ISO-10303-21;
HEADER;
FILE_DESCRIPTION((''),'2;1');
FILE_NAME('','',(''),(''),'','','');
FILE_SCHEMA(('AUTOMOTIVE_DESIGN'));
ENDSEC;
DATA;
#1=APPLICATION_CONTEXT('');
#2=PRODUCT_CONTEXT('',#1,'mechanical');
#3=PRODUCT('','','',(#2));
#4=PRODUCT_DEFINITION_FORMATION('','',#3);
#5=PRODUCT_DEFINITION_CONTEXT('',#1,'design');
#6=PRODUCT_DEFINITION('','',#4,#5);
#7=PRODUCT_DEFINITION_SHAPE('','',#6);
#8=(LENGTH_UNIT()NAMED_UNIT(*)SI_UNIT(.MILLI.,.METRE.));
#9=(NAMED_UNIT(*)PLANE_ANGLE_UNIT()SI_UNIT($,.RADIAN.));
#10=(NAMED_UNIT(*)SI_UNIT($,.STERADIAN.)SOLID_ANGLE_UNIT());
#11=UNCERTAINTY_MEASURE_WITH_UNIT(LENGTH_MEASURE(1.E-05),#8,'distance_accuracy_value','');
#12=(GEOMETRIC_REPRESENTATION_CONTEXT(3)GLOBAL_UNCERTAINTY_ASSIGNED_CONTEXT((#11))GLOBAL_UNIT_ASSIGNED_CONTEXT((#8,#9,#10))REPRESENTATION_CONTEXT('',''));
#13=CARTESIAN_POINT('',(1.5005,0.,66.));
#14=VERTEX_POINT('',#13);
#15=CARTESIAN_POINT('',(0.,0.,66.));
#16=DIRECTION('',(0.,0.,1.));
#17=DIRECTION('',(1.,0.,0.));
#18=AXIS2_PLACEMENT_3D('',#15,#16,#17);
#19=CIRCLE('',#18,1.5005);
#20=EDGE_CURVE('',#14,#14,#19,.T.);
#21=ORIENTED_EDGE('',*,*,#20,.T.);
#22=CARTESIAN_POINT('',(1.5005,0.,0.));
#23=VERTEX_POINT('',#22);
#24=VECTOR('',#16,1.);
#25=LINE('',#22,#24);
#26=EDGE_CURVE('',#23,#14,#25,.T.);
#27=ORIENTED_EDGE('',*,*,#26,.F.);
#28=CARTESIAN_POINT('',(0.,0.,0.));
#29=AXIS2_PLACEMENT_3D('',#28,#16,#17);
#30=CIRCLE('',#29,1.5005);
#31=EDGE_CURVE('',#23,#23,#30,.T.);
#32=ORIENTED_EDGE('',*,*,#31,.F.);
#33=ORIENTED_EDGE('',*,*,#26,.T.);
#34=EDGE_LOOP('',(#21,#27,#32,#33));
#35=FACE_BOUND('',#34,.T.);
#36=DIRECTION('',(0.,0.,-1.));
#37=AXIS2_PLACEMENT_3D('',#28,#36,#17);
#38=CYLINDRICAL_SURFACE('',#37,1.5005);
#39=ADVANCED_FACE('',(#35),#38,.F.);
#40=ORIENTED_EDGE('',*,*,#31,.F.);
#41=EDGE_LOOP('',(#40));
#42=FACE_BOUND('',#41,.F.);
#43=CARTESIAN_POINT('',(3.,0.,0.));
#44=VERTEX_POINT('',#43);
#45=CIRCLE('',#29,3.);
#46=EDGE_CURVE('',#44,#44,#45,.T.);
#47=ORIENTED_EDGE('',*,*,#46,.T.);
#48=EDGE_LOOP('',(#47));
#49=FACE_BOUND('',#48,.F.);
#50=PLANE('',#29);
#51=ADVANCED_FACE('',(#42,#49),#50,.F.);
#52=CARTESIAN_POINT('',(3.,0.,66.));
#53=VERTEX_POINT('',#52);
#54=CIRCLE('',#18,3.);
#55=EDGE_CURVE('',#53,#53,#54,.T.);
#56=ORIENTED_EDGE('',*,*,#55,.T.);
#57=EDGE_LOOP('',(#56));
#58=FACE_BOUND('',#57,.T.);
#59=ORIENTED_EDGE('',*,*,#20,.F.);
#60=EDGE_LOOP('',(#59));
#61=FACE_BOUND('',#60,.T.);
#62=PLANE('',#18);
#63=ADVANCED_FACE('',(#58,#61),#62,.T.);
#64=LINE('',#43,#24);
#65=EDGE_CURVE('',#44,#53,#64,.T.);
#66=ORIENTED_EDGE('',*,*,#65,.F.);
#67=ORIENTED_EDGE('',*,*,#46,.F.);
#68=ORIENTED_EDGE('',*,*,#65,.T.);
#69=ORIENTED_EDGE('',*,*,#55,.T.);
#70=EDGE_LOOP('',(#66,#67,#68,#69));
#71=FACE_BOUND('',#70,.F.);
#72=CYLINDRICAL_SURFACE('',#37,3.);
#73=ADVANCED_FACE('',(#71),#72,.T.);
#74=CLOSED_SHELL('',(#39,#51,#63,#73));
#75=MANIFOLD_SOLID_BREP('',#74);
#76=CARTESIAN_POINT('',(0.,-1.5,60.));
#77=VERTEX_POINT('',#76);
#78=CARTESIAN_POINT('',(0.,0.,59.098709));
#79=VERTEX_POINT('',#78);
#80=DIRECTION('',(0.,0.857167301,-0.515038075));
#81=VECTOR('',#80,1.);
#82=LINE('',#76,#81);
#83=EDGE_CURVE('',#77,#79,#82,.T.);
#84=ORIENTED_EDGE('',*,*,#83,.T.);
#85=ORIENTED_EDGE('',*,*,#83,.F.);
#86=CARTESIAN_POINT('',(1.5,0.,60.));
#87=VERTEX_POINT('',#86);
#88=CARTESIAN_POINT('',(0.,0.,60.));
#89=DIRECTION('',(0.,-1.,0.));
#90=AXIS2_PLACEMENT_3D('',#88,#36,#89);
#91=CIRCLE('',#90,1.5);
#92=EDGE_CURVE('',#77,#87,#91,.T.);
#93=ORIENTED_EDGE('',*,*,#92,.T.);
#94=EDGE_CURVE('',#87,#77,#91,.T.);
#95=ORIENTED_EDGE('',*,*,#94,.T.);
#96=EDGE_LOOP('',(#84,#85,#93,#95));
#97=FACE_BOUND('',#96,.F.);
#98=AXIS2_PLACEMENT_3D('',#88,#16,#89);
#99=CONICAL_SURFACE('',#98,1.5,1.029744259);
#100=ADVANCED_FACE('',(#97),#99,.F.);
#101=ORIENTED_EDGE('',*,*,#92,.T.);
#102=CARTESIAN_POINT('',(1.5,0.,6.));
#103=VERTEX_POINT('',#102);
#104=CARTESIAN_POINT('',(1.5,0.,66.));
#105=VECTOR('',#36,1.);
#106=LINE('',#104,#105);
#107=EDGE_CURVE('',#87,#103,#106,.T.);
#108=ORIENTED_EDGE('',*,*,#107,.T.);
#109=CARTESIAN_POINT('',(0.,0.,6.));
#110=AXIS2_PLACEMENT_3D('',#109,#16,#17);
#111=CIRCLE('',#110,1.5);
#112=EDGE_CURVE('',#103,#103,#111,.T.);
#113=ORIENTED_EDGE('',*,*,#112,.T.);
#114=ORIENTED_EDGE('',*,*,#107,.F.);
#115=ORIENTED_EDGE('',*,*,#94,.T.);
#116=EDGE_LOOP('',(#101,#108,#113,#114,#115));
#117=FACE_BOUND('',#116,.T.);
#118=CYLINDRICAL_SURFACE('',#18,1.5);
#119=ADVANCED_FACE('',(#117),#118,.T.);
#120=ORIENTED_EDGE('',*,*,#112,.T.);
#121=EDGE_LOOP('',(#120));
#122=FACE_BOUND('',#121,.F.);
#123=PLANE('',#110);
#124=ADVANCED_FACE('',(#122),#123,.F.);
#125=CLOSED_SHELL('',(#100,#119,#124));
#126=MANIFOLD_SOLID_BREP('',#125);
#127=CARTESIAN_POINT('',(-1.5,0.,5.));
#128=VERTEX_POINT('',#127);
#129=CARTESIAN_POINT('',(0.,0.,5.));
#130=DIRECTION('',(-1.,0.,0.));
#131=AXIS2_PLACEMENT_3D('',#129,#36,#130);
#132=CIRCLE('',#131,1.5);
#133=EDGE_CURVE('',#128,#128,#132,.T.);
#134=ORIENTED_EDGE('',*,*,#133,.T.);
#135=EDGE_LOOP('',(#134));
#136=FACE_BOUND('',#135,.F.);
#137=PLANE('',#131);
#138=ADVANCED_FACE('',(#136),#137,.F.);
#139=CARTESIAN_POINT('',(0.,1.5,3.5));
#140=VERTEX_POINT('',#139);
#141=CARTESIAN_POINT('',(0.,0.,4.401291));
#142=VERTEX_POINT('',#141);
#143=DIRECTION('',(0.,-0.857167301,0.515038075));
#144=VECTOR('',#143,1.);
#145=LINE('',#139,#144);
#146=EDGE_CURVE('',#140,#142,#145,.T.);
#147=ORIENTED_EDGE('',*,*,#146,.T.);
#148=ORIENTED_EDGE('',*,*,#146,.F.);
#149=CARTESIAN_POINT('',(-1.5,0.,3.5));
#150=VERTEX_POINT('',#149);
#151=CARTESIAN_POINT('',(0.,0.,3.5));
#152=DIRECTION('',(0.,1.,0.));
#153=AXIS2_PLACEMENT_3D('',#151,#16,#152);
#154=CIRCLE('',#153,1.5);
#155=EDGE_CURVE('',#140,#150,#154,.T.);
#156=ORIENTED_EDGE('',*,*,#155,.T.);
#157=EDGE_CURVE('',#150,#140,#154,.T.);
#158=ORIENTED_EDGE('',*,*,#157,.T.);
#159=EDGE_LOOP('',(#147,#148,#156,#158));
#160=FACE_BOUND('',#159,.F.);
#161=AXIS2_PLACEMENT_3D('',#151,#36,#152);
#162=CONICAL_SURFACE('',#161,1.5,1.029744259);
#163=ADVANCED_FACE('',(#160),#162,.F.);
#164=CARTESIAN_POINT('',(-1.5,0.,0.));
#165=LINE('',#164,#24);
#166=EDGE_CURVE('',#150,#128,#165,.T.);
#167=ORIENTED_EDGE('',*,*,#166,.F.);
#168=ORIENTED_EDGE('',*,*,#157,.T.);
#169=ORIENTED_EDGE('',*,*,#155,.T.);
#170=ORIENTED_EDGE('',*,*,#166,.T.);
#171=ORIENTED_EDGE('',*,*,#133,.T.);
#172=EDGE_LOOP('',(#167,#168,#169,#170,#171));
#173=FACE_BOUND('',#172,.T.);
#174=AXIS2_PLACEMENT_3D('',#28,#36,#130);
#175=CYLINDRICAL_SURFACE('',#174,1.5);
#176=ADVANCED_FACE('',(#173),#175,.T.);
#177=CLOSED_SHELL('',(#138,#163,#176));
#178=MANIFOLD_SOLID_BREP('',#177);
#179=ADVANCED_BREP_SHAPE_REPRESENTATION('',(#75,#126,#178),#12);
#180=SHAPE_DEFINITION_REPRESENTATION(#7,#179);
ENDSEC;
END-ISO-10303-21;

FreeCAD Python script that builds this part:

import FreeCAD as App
import Part
import Sketcher
from FreeCAD import Vector

doc = App.newDocument("Part")
body = doc.addObject("PartDesign::Body", "Body")
body.AllowCompound = True

# Sketch on XY plane
sketch1 = body.newObject("Sketcher::SketchObject", "Sketch")
sketch1.AttachmentSupport = (doc.getObject("XY_Plane"), [""])
sketch1.MapMode = "FlatFace"
sketch1.addGeometry([
    Part.Circle(Vector(0, 0, 0), Vector(0, 0, 1), 3),
    Part.Circle(Vector(0, 0, 0), Vector(0, 0, 1), 1.5),
], False)
sketch1.addConstraint([
    Sketcher.Constraint("Coincident", 0, 3, -1, 1),
    Sketcher.Constraint("Coincident", 1, 3, -1, 1),
    Sketcher.Constraint("Diameter", 0, 6.0),
    Sketcher.Constraint("Diameter", 1, 3.001),
])
pad1 = body.newObject("PartDesign::Pad", "Pad")
pad1.Profile = sketch1
pad1.Length = 66

# Sketch on XY plane
sketch2 = body.newObject("Sketcher::SketchObject", "Sketch001")
sketch2.AttachmentSupport = (doc.getObject("XY_Plane"), [""])
sketch2.MapMode = "FlatFace"
sketch2.AttachmentOffset = App.Placement(Vector(0, 0, 66), App.Rotation())
sketch2.addGeometry(Part.Circle(Vector(0, 0, 0), Vector(0, 0, 1), 1.5), False)
sketch2.addConstraint([
    Sketcher.Constraint("Coincident", 0, 3, -1, 1),
    Sketcher.Constraint("Diameter", 0, 3.0),
])
pad2 = body.newObject("PartDesign::Pad", "Pad001")
pad2.Profile = sketch2
pad2.Length = 60
pad2.Reversed = True

# Sketch on XY plane
sketch3 = body.newObject("Sketcher::SketchObject", "Sketch002")
sketch3.AttachmentSupport = (doc.getObject("XY_Plane"), [""])
sketch3.MapMode = "FlatFace"
sketch3.AttachmentOffset = App.Placement(Vector(0, 0, 66), App.Rotation())
sketch3.addGeometry(Part.Circle(Vector(0, 0, 0), Vector(0, 0, 1), 1.5), False)
sketch3.addConstraint([
    Sketcher.Constraint("Coincident", 0, 3, -1, 1),
    Sketcher.Constraint("Diameter", 0, 3.0),
])
doc.recompute()
hole = body.newObject("PartDesign::Hole", "Hole")
hole.Profile = sketch3
hole.ThreadType = "None"
hole.Diameter = 3
hole.DepthType = "Dimension"
hole.Depth = 6
hole.DrillPoint = "Angled"
hole.DrillPointAngle = 118

# Sketch on XY plane
sketch4 = body.newObject("Sketcher::SketchObject", "Sketch003")
sketch4.AttachmentSupport = (doc.getObject("XY_Plane"), [""])
sketch4.MapMode = "FlatFace"
sketch4.addGeometry(Part.Circle(Vector(0, 0, 0), Vector(0, 0, 1), 1.5), False)
sketch4.addConstraint([
    Sketcher.Constraint("Coincident", 0, 3, -1, 1),
    Sketcher.Constraint("Diameter", 0, 3.0),
])
pad3 = body.newObject("PartDesign::Pad", "Pad002")
pad3.Profile = sketch4
pad3.Length = 5

# Sketch on XY plane
sketch5 = body.newObject("Sketcher::SketchObject", "Sketch004")
sketch5.AttachmentSupport = (doc.getObject("XY_Plane"), [""])
sketch5.MapMode = "FlatFace"
sketch5.addGeometry(Part.Circle(Vector(0, 0, 0), Vector(0, 0, 1), 1.5), False)
sketch5.addConstraint([
    Sketcher.Constraint("Coincident", 0, 3, -1, 1),
    Sketcher.Constraint("Diameter", 0, 3.0),
])
doc.recompute()
hole2 = body.newObject("PartDesign::Hole", "Hole001")
hole2.Profile = sketch5
hole2.ThreadType = "None"
hole2.Diameter = 3
hole2.DepthType = "Dimension"
hole2.Depth = 3.5
hole2.DrillPoint = "Angled"
hole2.DrillPointAngle = 118
hole2.Reversed = True

doc.recompute()
